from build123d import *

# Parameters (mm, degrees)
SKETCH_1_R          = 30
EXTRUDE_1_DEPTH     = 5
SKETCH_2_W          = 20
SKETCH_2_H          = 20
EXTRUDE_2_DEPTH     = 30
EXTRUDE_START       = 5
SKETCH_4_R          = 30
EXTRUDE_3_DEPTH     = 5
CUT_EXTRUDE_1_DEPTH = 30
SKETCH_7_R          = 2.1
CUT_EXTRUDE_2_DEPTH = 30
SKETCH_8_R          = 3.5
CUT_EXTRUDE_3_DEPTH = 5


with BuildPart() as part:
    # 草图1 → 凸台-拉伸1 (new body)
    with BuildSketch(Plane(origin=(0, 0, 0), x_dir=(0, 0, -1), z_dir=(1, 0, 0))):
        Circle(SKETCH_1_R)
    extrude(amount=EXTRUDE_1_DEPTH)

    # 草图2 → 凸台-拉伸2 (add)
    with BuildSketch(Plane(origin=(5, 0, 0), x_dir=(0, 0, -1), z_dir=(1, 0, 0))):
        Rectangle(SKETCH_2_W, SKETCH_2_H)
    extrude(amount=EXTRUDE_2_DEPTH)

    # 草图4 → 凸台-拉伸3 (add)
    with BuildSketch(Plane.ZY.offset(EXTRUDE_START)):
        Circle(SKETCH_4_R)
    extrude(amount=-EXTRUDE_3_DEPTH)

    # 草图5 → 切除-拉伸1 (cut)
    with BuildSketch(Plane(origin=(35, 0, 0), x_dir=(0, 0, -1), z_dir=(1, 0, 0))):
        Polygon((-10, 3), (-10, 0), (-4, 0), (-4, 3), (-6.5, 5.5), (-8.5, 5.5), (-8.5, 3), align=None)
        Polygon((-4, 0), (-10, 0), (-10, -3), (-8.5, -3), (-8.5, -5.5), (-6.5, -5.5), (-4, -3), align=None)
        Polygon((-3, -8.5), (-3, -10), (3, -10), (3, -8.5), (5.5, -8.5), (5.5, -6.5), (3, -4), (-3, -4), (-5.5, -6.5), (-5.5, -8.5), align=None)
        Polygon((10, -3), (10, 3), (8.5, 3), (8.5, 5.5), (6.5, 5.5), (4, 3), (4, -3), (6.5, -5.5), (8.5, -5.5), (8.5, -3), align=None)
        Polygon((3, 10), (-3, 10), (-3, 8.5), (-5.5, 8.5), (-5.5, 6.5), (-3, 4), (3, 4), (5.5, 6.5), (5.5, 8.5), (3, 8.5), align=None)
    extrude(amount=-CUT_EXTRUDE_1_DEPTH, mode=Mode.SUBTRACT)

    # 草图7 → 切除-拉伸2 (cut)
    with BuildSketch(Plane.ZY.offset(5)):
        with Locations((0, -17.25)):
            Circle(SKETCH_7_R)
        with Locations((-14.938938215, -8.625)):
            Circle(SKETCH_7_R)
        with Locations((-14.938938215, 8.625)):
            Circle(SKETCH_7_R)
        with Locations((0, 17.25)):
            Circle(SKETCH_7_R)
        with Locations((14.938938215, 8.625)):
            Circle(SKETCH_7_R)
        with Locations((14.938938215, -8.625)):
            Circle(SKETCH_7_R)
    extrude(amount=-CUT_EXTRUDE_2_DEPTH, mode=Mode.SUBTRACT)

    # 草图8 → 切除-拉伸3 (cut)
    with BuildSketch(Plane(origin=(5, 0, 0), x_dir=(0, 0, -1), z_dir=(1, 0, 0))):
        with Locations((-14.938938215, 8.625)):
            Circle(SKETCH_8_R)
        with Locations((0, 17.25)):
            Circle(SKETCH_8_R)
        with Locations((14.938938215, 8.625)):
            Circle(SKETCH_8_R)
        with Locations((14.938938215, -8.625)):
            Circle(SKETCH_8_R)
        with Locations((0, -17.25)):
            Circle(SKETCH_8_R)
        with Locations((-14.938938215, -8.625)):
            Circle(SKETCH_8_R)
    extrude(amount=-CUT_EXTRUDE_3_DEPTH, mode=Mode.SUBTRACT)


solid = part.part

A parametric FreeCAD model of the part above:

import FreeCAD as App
import Part
import Sketcher
from FreeCAD import Vector
Q = App.Units.Quantity

doc = App.newDocument("Part")
body = doc.addObject("PartDesign::Body", "Body")

# Sketch on YZ plane
sketch1 = body.newObject("Sketcher::SketchObject", "Sketch")
sketch1.AttachmentSupport = (doc.getObject("YZ_Plane"), [""])
sketch1.MapMode = "FlatFace"
sketch1.addGeometry(Part.Circle(Vector(0, 0, 0), Vector(0, 0, 1), 30), False)
sketch1.addConstraint(Sketcher.Constraint("Coincident", 0, 3, -1, 1))
sketch1.addConstraint(Sketcher.Constraint("Diameter", 0, Q("60 mm")))
pad1 = body.newObject("PartDesign::Pad", "Pad")
pad1.Profile = sketch1
pad1.Length = 5

# Sketch on YZ plane
sketch2 = body.newObject("Sketcher::SketchObject", "Sketch001")
sketch2.AttachmentSupport = (doc.getObject("YZ_Plane"), [""])
sketch2.MapMode = "FlatFace"
sketch2.AttachmentOffset = App.Placement(Vector(0, 0, 5), App.Rotation())
sketch2.addGeometry(Part.LineSegment(Vector(10, 10, 0), Vector(-10, 10, 0)), False)
sketch2.addGeometry(Part.LineSegment(Vector(-10, 10, 0), Vector(-10, -10, 0)), False)
sketch2.addGeometry(Part.LineSegment(Vector(-10, -10, 0), Vector(10, -10, 0)), False)
sketch2.addGeometry(Part.LineSegment(Vector(10, -10, 0), Vector(10, 10, 0)), False)
sketch2.addConstraint(Sketcher.Constraint("Coincident", 0, 2, 1, 1))
sketch2.addConstraint(Sketcher.Constraint("Coincident", 1, 2, 2, 1))
sketch2.addConstraint(Sketcher.Constraint("Coincident", 2, 2, 3, 1))
sketch2.addConstraint(Sketcher.Constraint("Coincident", 3, 2, 0, 1))
sketch2.addConstraint(Sketcher.Constraint("Horizontal", 0))
sketch2.addConstraint(Sketcher.Constraint("Vertical", 1))
sketch2.addConstraint(Sketcher.Constraint("Horizontal", 2))
sketch2.addConstraint(Sketcher.Constraint("Vertical", 3))
sketch2.addConstraint(Sketcher.Constraint("Symmetric", 0, 2, 2, 2, -1, 1))
sketch2.addConstraint(Sketcher.Constraint("Equal", 2, 1))
sketch2.addConstraint(Sketcher.Constraint("DistanceX", 0, 2, 0, 1, Q("20 mm")))
pad2 = body.newObject("PartDesign::Pad", "Pad001")
pad2.Profile = sketch2
pad2.Length = 30

# Sketch on YZ plane
sketch3 = body.newObject("Sketcher::SketchObject", "Sketch002")
sketch3.AttachmentSupport = (doc.getObject("YZ_Plane"), [""])
sketch3.MapMode = "FlatFace"
sketch3.AttachmentOffset = App.Placement(Vector(0, 0, -5), App.Rotation())
sketch3.addGeometry(Part.Circle(Vector(0, 0, 0), Vector(0, 0, 1), 30), False)
sketch3.addConstraint(Sketcher.Constraint("Coincident", 0, 3, -1, 1))
sketch3.addConstraint(Sketcher.Constraint("Diameter", 0, Q("60 mm")))
pad3 = body.newObject("PartDesign::Pad", "Pad002")
pad3.Profile = sketch3
pad3.Length = 5

# Sketch on YZ plane
sketch4 = body.newObject("Sketcher::SketchObject", "Sketch003")
sketch4.AttachmentSupport = (doc.getObject("YZ_Plane"), [""])
sketch4.MapMode = "FlatFace"
sketch4.AttachmentOffset = App.Placement(Vector(0, 0, 35), App.Rotation())
sketch4.addGeometry(Part.LineSegment(Vector(3, 10, 0), Vector(-3, 10, 0)), False)
sketch4.addGeometry(Part.LineSegment(Vector(-3, 10, 0), Vector(-3, 8.5, 0)), False)
sketch4.addGeometry(Part.LineSegment(Vector(-3, 8.5, 0), Vector(-5.5, 8.5, 0)), False)
sketch4.addGeometry(Part.LineSegment(Vector(-5.5, 8.5, 0), Vector(-5.5, 6.5, 0)), False)
sketch4.addGeometry(Part.LineSegment(Vector(-5.5, 6.5, 0), Vector(-3, 4, 0)), False)
sketch4.addGeometry(Part.LineSegment(Vector(-3, 4, 0), Vector(3, 4, 0)), False)
sketch4.addGeometry(Part.LineSegment(Vector(3, 4, 0), Vector(5.5, 6.5, 0)), False)
sketch4.addGeometry(Part.LineSegment(Vector(5.5, 6.5, 0), Vector(5.5, 8.5, 0)), False)
sketch4.addGeometry(Part.LineSegment(Vector(5.5, 8.5, 0), Vector(3, 8.5, 0)), False)
sketch4.addGeometry(Part.LineSegment(Vector(3, 8.5, 0), Vector(3, 10, 0)), False)
sketch4.addGeometry(Part.LineSegment(Vector(-8.5, 3, 0), Vector(-10, 3, 0)), False)
sketch4.addGeometry(Part.LineSegment(Vector(-10, 3, 0), Vector(-10, -3, 0)), False)
sketch4.addGeometry(Part.LineSegment(Vector(-10, -3, 0), Vector(-8.5, -3, 0)), False)
sketch4.addGeometry(Part.LineSegment(Vector(-8.5, -3, 0), Vector(-8.5, -5.5, 0)), False)
sketch4.addGeometry(Part.LineSegment(Vector(-8.5, -5.5, 0), Vector(-6.5, -5.5, 0)), False)
sketch4.addGeometry(Part.LineSegment(Vector(-6.5, -5.5, 0), Vector(-4, -3, 0)), False)
sketch4.addGeometry(Part.LineSegment(Vector(-4, -3, 0), Vector(-4, 3, 0)), False)
sketch4.addGeometry(Part.LineSegment(Vector(-4, 3, 0), Vector(-6.5, 5.5, 0)), False)
sketch4.addGeometry(Part.LineSegment(Vector(-6.5, 5.5, 0), Vector(-8.5, 5.5, 0)), False)
sketch4.addGeometry(Part.LineSegment(Vector(-8.5, 5.5, 0), Vector(-8.5, 3, 0)), False)
sketch4.addGeometry(Part.LineSegment(Vector(-3, -10, 0), Vector(3, -10, 0)), False)
sketch4.addGeometry(Part.LineSegment(Vector(3, -10, 0), Vector(3, -8.5, 0)), False)
sketch4.addGeometry(Part.LineSegment(Vector(3, -8.5, 0), Vector(5.5, -8.5, 0)), False)
sketch4.addGeometry(Part.LineSegment(Vector(5.5, -8.5, 0), Vector(5.5, -6.5, 0)), False)
sketch4.addGeometry(Part.LineSegment(Vector(5.5, -6.5, 0), Vector(3, -4, 0)), False)
sketch4.addGeometry(Part.LineSegment(Vector(3, -4, 0), Vector(-3, -4, 0)), False)
sketch4.addGeometry(Part.LineSegment(Vector(-3, -4, 0), Vector(-5.5, -6.5, 0)), False)
sketch4.addGeometry(Part.LineSegment(Vector(-5.5, -6.5, 0), Vector(-5.5, -8.5, 0)), False)
sketch4.addGeometry(Part.LineSegment(Vector(-5.5, -8.5, 0), Vector(-3, -8.5, 0)), False)
sketch4.addGeometry(Part.LineSegment(Vector(-3, -8.5, 0), Vector(-3, -10, 0)), False)
sketch4.addGeometry(Part.LineSegment(Vector(10, -3, 0), Vector(10, 3, 0)), False)
sketch4.addGeometry(Part.LineSegment(Vector(10, 3, 0), Vector(8.5, 3, 0)), False)
sketch4.addGeometry(Part.LineSegment(Vector(8.5, 3, 0), Vector(8.5, 5.5, 0)), False)
sketch4.addGeometry(Part.LineSegment(Vector(8.5, 5.5, 0), Vector(6.5, 5.5, 0)), False)
sketch4.addGeometry(Part.LineSegment(Vector(6.5, 5.5, 0), Vector(4, 3, 0)), False)
sketch4.addGeometry(Part.LineSegment(Vector(4, 3, 0), Vector(4, -3, 0)), False)
sketch4.addGeometry(Part.LineSegment(Vector(4, -3, 0), Vector(6.5, -5.5, 0)), False)
sketch4.addGeometry(Part.LineSegment(Vector(6.5, -5.5, 0), Vector(8.5, -5.5, 0)), False)
sketch4.addGeometry(Part.LineSegment(Vector(8.5, -5.5, 0), Vector(8.5, -3, 0)), False)
sketch4.addGeometry(Part.LineSegment(Vector(8.5, -3, 0), Vector(10, -3, 0)), False)
sketch4.addConstraint(Sketcher.Constraint("Coincident", 0, 2, 1, 1))
sketch4.addConstraint(Sketcher.Constraint("Coincident", 1, 2, 2, 1))
sketch4.addConstraint(Sketcher.Constraint("Coincident", 2, 2, 3, 1))
sketch4.addConstraint(Sketcher.Constraint("Coincident", 3, 2, 4, 1))
sketch4.addConstraint(Sketcher.Constraint("Coincident", 4, 2, 5, 1))
sketch4.addConstraint(Sketcher.Constraint("Coincident", 5, 2, 6, 1))
sketch4.addConstraint(Sketcher.Constraint("Coincident", 6, 2, 7, 1))
sketch4.addConstraint(Sketcher.Constraint("Coincident", 7, 2, 8, 1))
sketch4.addConstraint(Sketcher.Constraint("Coincident", 8, 2, 9, 1))
sketch4.addConstraint(Sketcher.Constraint("Coincident", 9, 2, 0, 1))
sketch4.addConstraint(Sketcher.Constraint("Coincident", 10, 2, 11, 1))
sketch4.addConstraint(Sketcher.Constraint("Coincident", 11, 2, 12, 1))
sketch4.addConstraint(Sketcher.Constraint("Coincident", 12, 2, 13, 1))
sketch4.addConstraint(Sketcher.Constraint("Coincident", 13, 2, 14, 1))
sketch4.addConstraint(Sketcher.Constraint("Coincident", 14, 2, 15, 1))
sketch4.addConstraint(Sketcher.Constraint("Coincident", 15, 2, 16, 1))
sketch4.addConstraint(Sketcher.Constraint("Coincident", 16, 2, 17, 1))
sketch4.addConstraint(Sketcher.Constraint("Coincident", 17, 2, 18, 1))
sketch4.addConstraint(Sketcher.Constraint("Coincident", 18, 2, 19, 1))
sketch4.addConstraint(Sketcher.Constraint("Coincident", 19, 2, 10, 1))
sketch4.addConstraint(Sketcher.Constraint("Coincident", 20, 2, 21, 1))
sketch4.addConstraint(Sketcher.Constraint("Coincident", 21, 2, 22, 1))
sketch4.addConstraint(Sketcher.Constraint("Coincident", 22, 2, 23, 1))
sketch4.addConstraint(Sketcher.Constraint("Coincident", 23, 2, 24, 1))
sketch4.addConstraint(Sketcher.Constraint("Coincident", 24, 2, 25, 1))
sketch4.addConstraint(Sketcher.Constraint("Coincident", 25, 2, 26, 1))
sketch4.addConstraint(Sketcher.Constraint("Coincident", 26, 2, 27, 1))
sketch4.addConstraint(Sketcher.Constraint("Coincident", 27, 2, 28, 1))
sketch4.addConstraint(Sketcher.Constraint("Coincident", 28, 2, 29, 1))
sketch4.addConstraint(Sketcher.Constraint("Coincident", 29, 2, 20, 1))
sketch4.addConstraint(Sketcher.Constraint("Coincident", 30, 2, 31, 1))
sketch4.addConstraint(Sketcher.Constraint("Coincident", 31, 2, 32, 1))
sketch4.addConstraint(Sketcher.Constraint("Coincident", 32, 2, 33, 1))
sketch4.addConstraint(Sketcher.Constraint("Coincident", 33, 2, 34, 1))
sketch4.addConstraint(Sketcher.Constraint("Coincident", 34, 2, 35, 1))
sketch4.addConstraint(Sketcher.Constraint("Coincident", 35, 2, 36, 1))
sketch4.addConstraint(Sketcher.Constraint("Coincident", 36, 2, 37, 1))
sketch4.addConstraint(Sketcher.Constraint("Coincident", 37, 2, 38, 1))
sketch4.addConstraint(Sketcher.Constraint("Coincident", 38, 2, 39, 1))
sketch4.addConstraint(Sketcher.Constraint("Coincident", 39, 2, 30, 1))
sketch4.addConstraint(Sketcher.Constraint("Horizontal", 0))
sketch4.addConstraint(Sketcher.Constraint("Vertical", 1))
sketch4.addConstraint(Sketcher.Constraint("Horizontal", 2))
sketch4.addConstraint(Sketcher.Constraint("Vertical", 3))
sketch4.addConstraint(Sketcher.Constraint("Horizontal", 5))
sketch4.addConstraint(Sketcher.Constraint("Vertical", 7))
sketch4.addConstraint(Sketcher.Constraint("Horizontal", 8))
sketch4.addConstraint(Sketcher.Constraint("Vertical", 9))
sketch4.addConstraint(Sketcher.Constraint("Horizontal", 10))
sketch4.addConstraint(Sketcher.Constraint("Vertical", 11))
sketch4.addConstraint(Sketcher.Constraint("Horizontal", 12))
sketch4.addConstraint(Sketcher.Constraint("Vertical", 13))
sketch4.addConstraint(Sketcher.Constraint("Horizontal", 14))
sketch4.addConstraint(Sketcher.Constraint("Vertical", 16))
sketch4.addConstraint(Sketcher.Constraint("Horizontal", 18))
sketch4.addConstraint(Sketcher.Constraint("Vertical", 19))
sketch4.addConstraint(Sketcher.Constraint("Horizontal", 20))
sketch4.addConstraint(Sketcher.Constraint("Vertical", 21))
sketch4.addConstraint(Sketcher.Constraint("Horizontal", 22))
sketch4.addConstraint(Sketcher.Constraint("Vertical", 23))
sketch4.addConstraint(Sketcher.Constraint("Horizontal", 25))
sketch4.addConstraint(Sketcher.Constraint("Vertical", 27))
sketch4.addConstraint(Sketcher.Constraint("Horizontal", 28))
sketch4.addConstraint(Sketcher.Constraint("Vertical", 29))
sketch4.addConstraint(Sketcher.Constraint("Vertical", 30))
sketch4.addConstraint(Sketcher.Constraint("Horizontal", 31))
sketch4.addConstraint(Sketcher.Constraint("Vertical", 32))
sketch4.addConstraint(Sketcher.Constraint("Horizontal", 33))
sketch4.addConstraint(Sketcher.Constraint("Vertical", 35))
sketch4.addConstraint(Sketcher.Constraint("Horizontal", 37))
sketch4.addConstraint(Sketcher.Constraint("Vertical", 38))
sketch4.addConstraint(Sketcher.Constraint("Horizontal", 39))
sketch4.addConstraint(Sketcher.Constraint("Symmetric", 0, 2, 20, 2, -1, 1))
sketch4.addConstraint(Sketcher.Constraint("Symmetric", 2, 2, 22, 2, -1, 1))
sketch4.addConstraint(Sketcher.Constraint("Symmetric", 4, 2, 24, 2, -1, 1))
sketch4.addConstraint(Sketcher.Constraint("Symmetric", 6, 2, 26, 2, -1, 1))
sketch4.addConstraint(Sketcher.Constraint("Symmetric", 8, 2, 28, 2, -1, 1))
sketch4.addConstraint(Sketcher.Constraint("Symmetric", 11, 2, 30, 2, -1, 1))
sketch4.addConstraint(Sketcher.Constraint("Symmetric", 13, 2, 32, 2, -1, 1))
sketch4.addConstraint(Sketcher.Constraint("Symmetric", 15, 2, 34, 2, -1, 1))
sketch4.addConstraint(Sketcher.Constraint("Symmetric", 17, 2, 36, 2, -1, 1))
sketch4.addConstraint(Sketcher.Constraint("Symmetric", 19, 2, 38, 2, -1, 1))
sketch4.addConstraint(Sketcher.Constraint("Symmetric", 3, 2, 6, 2, -2))
sketch4.addConstraint(Sketcher.Constraint("Symmetric", 1, 2, 8, 2, -2))
sketch4.addConstraint(Sketcher.Constraint("Symmetric", 19, 2, 31, 2, -2))
sketch4.addConstraint(Sketcher.Constraint("Symmetric", 17, 2, 33, 2, -2))
sketch4.addConstraint(Sketcher.Constraint("Perpendicular", 4, 6))
sketch4.addConstraint(Sketcher.Constraint("Parallel", 6, 15))
sketch4.addConstraint(Sketcher.Constraint("Perpendicular", 15, 17))
sketch4.addConstraint(Sketcher.Constraint("Parallel", 17, 24))
sketch4.addConstraint(Sketcher.Constraint("Perpendicular", 24, 26))
sketch4.addConstraint(Sketcher.Constraint("Parallel", 26, 34))
sketch4.addConstraint(Sketcher.Constraint("Perpendicular", 34, 36))
sketch4.addConstraint(Sketcher.Constraint("Horizontal", 12, 2, 15, 2))
sketch4.addConstraint(Sketcher.Constraint("Horizontal", 10, 2, 16, 2))
sketch4.addConstraint(Sketcher.Constraint("Vertical", 1, 2, 4, 2))
sketch4.addConstraint(Sketcher.Constraint("Equal", 39, 1))
sketch4.addConstraint(Sketcher.Constraint("Equal", 37, 3))
sketch4.addConstraint(Sketcher.Constraint("Equal", 25, 11))
sketch4.addConstraint(Sketcher.Constraint("Equal", 28, 13))
sketch4.addConstraint(Sketcher.Constraint("DistanceX", 0, 2, 0, 1, Q("6 mm")))
sketch4.addConstraint(Sketcher.Constraint("DistanceX", 14, 1, 14, 2, Q("2 mm")))
sketch4.addConstraint(Sketcher.Constraint("DistanceX", 2, 2, 2, 1, Q("2.5 mm")))
sketch4.addConstraint(Sketcher.Constraint("DistanceX", 10, 2, 10, 1, Q("1.5 mm")))
sketch4.addConstraint(Sketcher.Constraint("DistanceY", -1, 1, 0, 2, Q("10 mm")))
sketch4.addConstraint(Sketcher.Constraint("DistanceX", 10, 2, -1, 1, Q("10 mm")))
pocket1 = body.newObject("PartDesign::Pocket", "Pocket")
pocket1.Profile = sketch4
pocket1.Length = 30

# Sketch on YZ plane
sketch5 = body.newObject("Sketcher::SketchObject", "Sketch004")
sketch5.AttachmentSupport = (doc.getObject("YZ_Plane"), [""])
sketch5.MapMode = "FlatFace"
sketch5.AttachmentOffset = App.Placement(Vector(0, 0, -5), App.Rotation())
sketch5.addGeometry(Part.Circle(Vector(-17.25, 0, 0), Vector(0, 0, 1), 2.1), False)
sketch5.addGeometry(Part.Circle(Vector(-8.625, -14.938938, 0), Vector(0, 0, 1), 2.1), False)
sketch5.addGeometry(Part.Circle(Vector(8.625, -14.938938, 0), Vector(0, 0, 1), 2.1), False)
sketch5.addGeometry(Part.Circle(Vector(17.25, 0, 0), Vector(0, 0, 1), 2.1), False)
sketch5.addGeometry(Part.Circle(Vector(8.625, 14.938938, 0), Vector(0, 0, 1), 2.1), False)
sketch5.addGeometry(Part.Circle(Vector(-8.625, 14.938938, 0), Vector(0, 0, 1), 2.1), False)
sketch5.addConstraint(Sketcher.Constraint("Equal", 0, 1))
sketch5.addConstraint(Sketcher.Constraint("Equal", 1, 2))
sketch5.addConstraint(Sketcher.Constraint("Equal", 2, 3))
sketch5.addConstraint(Sketcher.Constraint("Equal", 3, 4))
sketch5.addConstraint(Sketcher.Constraint("Equal", 4, 5))
sketch5.addConstraint(Sketcher.Constraint("Symmetric", 0, 3, 3, 3, -1, 1))
sketch5.addConstraint(Sketcher.Constraint("Symmetric", 1, 3, 4, 3, -1, 1))
sketch5.addConstraint(Sketcher.Constraint("Symmetric", 2, 3, 5, 3, -1, 1))
sketch5.addConstraint(Sketcher.Constraint("Symmetric", 1, 3, 2, 3, -2))
sketch5.addConstraint(Sketcher.Constraint("PointOnObject", 0, 3, -1))
sketch5.addConstraint(Sketcher.Constraint("Diameter", 0, Q("4.2 mm")))
sketch5.addConstraint(Sketcher.Constraint("DistanceX", 0, 3, 3, 3, Q("34.5 mm")))
sketch5.addConstraint(Sketcher.Constraint("DistanceX", 1, 3, 2, 3, Q("17.25 mm")))
sketch5.addConstraint(Sketcher.Constraint("DistanceY", 1, 3, -1, 1, Q("14.938938 mm")))
pocket2 = body.newObject("PartDesign::Pocket", "Pocket001")
pocket2.Profile = sketch5
pocket2.Length = 30
pocket2.Reversed = True

# Sketch on YZ plane
sketch6 = body.newObject("Sketcher::SketchObject", "Sketch005")
sketch6.AttachmentSupport = (doc.getObject("YZ_Plane"), [""])
sketch6.MapMode = "FlatFace"
sketch6.AttachmentOffset = App.Placement(Vector(0, 0, 5), App.Rotation())
sketch6.addGeometry(Part.Circle(Vector(8.625, 14.938938, 0), Vector(0, 0, 1), 3.5), False)
sketch6.addGeometry(Part.Circle(Vector(17.25, 0, 0), Vector(0, 0, 1), 3.5), False)
sketch6.addGeometry(Part.Circle(Vector(8.625, -14.938938, 0), Vector(0, 0, 1), 3.5), False)
sketch6.addGeometry(Part.Circle(Vector(-8.625, -14.938938, 0), Vector(0, 0, 1), 3.5), False)
sketch6.addGeometry(Part.Circle(Vector(-17.25, 0, 0), Vector(0, 0, 1), 3.5), False)
sketch6.addGeometry(Part.Circle(Vector(-8.625, 14.938938, 0), Vector(0, 0, 1), 3.5), False)
sketch6.addConstraint(Sketcher.Constraint("Equal", 0, 1))
sketch6.addConstraint(Sketcher.Constraint("Equal", 1, 2))
sketch6.addConstraint(Sketcher.Constraint("Equal", 2, 3))
sketch6.addConstraint(Sketcher.Constraint("Equal", 3, 4))
sketch6.addConstraint(Sketcher.Constraint("Equal", 4, 5))
sketch6.addConstraint(Sketcher.Constraint("Symmetric", 0, 3, 3, 3, -1, 1))
sketch6.addConstraint(Sketcher.Constraint("Symmetric", 1, 3, 4, 3, -1, 1))
sketch6.addConstraint(Sketcher.Constraint("Symmetric", 2, 3, 5, 3, -1, 1))
sketch6.addConstraint(Sketcher.Constraint("Symmetric", 2, 3, 3, 3, -2))
sketch6.addConstraint(Sketcher.Constraint("PointOnObject", 1, 3, -1))
sketch6.addConstraint(Sketcher.Constraint("Diameter", 0, Q("7 mm")))
sketch6.addConstraint(Sketcher.Constraint("DistanceX", 4, 3, 1, 3, Q("34.5 mm")))
sketch6.addConstraint(Sketcher.Constraint("DistanceX", 3, 3, 2, 3, Q("17.25 mm")))
sketch6.addConstraint(Sketcher.Constraint("DistanceY", -1, 1, 0, 3, Q("14.938938 mm")))
pocket3 = body.newObject("PartDesign::Pocket", "Pocket002")
pocket3.Profile = sketch6
pocket3.Length = 5

doc.recompute()
